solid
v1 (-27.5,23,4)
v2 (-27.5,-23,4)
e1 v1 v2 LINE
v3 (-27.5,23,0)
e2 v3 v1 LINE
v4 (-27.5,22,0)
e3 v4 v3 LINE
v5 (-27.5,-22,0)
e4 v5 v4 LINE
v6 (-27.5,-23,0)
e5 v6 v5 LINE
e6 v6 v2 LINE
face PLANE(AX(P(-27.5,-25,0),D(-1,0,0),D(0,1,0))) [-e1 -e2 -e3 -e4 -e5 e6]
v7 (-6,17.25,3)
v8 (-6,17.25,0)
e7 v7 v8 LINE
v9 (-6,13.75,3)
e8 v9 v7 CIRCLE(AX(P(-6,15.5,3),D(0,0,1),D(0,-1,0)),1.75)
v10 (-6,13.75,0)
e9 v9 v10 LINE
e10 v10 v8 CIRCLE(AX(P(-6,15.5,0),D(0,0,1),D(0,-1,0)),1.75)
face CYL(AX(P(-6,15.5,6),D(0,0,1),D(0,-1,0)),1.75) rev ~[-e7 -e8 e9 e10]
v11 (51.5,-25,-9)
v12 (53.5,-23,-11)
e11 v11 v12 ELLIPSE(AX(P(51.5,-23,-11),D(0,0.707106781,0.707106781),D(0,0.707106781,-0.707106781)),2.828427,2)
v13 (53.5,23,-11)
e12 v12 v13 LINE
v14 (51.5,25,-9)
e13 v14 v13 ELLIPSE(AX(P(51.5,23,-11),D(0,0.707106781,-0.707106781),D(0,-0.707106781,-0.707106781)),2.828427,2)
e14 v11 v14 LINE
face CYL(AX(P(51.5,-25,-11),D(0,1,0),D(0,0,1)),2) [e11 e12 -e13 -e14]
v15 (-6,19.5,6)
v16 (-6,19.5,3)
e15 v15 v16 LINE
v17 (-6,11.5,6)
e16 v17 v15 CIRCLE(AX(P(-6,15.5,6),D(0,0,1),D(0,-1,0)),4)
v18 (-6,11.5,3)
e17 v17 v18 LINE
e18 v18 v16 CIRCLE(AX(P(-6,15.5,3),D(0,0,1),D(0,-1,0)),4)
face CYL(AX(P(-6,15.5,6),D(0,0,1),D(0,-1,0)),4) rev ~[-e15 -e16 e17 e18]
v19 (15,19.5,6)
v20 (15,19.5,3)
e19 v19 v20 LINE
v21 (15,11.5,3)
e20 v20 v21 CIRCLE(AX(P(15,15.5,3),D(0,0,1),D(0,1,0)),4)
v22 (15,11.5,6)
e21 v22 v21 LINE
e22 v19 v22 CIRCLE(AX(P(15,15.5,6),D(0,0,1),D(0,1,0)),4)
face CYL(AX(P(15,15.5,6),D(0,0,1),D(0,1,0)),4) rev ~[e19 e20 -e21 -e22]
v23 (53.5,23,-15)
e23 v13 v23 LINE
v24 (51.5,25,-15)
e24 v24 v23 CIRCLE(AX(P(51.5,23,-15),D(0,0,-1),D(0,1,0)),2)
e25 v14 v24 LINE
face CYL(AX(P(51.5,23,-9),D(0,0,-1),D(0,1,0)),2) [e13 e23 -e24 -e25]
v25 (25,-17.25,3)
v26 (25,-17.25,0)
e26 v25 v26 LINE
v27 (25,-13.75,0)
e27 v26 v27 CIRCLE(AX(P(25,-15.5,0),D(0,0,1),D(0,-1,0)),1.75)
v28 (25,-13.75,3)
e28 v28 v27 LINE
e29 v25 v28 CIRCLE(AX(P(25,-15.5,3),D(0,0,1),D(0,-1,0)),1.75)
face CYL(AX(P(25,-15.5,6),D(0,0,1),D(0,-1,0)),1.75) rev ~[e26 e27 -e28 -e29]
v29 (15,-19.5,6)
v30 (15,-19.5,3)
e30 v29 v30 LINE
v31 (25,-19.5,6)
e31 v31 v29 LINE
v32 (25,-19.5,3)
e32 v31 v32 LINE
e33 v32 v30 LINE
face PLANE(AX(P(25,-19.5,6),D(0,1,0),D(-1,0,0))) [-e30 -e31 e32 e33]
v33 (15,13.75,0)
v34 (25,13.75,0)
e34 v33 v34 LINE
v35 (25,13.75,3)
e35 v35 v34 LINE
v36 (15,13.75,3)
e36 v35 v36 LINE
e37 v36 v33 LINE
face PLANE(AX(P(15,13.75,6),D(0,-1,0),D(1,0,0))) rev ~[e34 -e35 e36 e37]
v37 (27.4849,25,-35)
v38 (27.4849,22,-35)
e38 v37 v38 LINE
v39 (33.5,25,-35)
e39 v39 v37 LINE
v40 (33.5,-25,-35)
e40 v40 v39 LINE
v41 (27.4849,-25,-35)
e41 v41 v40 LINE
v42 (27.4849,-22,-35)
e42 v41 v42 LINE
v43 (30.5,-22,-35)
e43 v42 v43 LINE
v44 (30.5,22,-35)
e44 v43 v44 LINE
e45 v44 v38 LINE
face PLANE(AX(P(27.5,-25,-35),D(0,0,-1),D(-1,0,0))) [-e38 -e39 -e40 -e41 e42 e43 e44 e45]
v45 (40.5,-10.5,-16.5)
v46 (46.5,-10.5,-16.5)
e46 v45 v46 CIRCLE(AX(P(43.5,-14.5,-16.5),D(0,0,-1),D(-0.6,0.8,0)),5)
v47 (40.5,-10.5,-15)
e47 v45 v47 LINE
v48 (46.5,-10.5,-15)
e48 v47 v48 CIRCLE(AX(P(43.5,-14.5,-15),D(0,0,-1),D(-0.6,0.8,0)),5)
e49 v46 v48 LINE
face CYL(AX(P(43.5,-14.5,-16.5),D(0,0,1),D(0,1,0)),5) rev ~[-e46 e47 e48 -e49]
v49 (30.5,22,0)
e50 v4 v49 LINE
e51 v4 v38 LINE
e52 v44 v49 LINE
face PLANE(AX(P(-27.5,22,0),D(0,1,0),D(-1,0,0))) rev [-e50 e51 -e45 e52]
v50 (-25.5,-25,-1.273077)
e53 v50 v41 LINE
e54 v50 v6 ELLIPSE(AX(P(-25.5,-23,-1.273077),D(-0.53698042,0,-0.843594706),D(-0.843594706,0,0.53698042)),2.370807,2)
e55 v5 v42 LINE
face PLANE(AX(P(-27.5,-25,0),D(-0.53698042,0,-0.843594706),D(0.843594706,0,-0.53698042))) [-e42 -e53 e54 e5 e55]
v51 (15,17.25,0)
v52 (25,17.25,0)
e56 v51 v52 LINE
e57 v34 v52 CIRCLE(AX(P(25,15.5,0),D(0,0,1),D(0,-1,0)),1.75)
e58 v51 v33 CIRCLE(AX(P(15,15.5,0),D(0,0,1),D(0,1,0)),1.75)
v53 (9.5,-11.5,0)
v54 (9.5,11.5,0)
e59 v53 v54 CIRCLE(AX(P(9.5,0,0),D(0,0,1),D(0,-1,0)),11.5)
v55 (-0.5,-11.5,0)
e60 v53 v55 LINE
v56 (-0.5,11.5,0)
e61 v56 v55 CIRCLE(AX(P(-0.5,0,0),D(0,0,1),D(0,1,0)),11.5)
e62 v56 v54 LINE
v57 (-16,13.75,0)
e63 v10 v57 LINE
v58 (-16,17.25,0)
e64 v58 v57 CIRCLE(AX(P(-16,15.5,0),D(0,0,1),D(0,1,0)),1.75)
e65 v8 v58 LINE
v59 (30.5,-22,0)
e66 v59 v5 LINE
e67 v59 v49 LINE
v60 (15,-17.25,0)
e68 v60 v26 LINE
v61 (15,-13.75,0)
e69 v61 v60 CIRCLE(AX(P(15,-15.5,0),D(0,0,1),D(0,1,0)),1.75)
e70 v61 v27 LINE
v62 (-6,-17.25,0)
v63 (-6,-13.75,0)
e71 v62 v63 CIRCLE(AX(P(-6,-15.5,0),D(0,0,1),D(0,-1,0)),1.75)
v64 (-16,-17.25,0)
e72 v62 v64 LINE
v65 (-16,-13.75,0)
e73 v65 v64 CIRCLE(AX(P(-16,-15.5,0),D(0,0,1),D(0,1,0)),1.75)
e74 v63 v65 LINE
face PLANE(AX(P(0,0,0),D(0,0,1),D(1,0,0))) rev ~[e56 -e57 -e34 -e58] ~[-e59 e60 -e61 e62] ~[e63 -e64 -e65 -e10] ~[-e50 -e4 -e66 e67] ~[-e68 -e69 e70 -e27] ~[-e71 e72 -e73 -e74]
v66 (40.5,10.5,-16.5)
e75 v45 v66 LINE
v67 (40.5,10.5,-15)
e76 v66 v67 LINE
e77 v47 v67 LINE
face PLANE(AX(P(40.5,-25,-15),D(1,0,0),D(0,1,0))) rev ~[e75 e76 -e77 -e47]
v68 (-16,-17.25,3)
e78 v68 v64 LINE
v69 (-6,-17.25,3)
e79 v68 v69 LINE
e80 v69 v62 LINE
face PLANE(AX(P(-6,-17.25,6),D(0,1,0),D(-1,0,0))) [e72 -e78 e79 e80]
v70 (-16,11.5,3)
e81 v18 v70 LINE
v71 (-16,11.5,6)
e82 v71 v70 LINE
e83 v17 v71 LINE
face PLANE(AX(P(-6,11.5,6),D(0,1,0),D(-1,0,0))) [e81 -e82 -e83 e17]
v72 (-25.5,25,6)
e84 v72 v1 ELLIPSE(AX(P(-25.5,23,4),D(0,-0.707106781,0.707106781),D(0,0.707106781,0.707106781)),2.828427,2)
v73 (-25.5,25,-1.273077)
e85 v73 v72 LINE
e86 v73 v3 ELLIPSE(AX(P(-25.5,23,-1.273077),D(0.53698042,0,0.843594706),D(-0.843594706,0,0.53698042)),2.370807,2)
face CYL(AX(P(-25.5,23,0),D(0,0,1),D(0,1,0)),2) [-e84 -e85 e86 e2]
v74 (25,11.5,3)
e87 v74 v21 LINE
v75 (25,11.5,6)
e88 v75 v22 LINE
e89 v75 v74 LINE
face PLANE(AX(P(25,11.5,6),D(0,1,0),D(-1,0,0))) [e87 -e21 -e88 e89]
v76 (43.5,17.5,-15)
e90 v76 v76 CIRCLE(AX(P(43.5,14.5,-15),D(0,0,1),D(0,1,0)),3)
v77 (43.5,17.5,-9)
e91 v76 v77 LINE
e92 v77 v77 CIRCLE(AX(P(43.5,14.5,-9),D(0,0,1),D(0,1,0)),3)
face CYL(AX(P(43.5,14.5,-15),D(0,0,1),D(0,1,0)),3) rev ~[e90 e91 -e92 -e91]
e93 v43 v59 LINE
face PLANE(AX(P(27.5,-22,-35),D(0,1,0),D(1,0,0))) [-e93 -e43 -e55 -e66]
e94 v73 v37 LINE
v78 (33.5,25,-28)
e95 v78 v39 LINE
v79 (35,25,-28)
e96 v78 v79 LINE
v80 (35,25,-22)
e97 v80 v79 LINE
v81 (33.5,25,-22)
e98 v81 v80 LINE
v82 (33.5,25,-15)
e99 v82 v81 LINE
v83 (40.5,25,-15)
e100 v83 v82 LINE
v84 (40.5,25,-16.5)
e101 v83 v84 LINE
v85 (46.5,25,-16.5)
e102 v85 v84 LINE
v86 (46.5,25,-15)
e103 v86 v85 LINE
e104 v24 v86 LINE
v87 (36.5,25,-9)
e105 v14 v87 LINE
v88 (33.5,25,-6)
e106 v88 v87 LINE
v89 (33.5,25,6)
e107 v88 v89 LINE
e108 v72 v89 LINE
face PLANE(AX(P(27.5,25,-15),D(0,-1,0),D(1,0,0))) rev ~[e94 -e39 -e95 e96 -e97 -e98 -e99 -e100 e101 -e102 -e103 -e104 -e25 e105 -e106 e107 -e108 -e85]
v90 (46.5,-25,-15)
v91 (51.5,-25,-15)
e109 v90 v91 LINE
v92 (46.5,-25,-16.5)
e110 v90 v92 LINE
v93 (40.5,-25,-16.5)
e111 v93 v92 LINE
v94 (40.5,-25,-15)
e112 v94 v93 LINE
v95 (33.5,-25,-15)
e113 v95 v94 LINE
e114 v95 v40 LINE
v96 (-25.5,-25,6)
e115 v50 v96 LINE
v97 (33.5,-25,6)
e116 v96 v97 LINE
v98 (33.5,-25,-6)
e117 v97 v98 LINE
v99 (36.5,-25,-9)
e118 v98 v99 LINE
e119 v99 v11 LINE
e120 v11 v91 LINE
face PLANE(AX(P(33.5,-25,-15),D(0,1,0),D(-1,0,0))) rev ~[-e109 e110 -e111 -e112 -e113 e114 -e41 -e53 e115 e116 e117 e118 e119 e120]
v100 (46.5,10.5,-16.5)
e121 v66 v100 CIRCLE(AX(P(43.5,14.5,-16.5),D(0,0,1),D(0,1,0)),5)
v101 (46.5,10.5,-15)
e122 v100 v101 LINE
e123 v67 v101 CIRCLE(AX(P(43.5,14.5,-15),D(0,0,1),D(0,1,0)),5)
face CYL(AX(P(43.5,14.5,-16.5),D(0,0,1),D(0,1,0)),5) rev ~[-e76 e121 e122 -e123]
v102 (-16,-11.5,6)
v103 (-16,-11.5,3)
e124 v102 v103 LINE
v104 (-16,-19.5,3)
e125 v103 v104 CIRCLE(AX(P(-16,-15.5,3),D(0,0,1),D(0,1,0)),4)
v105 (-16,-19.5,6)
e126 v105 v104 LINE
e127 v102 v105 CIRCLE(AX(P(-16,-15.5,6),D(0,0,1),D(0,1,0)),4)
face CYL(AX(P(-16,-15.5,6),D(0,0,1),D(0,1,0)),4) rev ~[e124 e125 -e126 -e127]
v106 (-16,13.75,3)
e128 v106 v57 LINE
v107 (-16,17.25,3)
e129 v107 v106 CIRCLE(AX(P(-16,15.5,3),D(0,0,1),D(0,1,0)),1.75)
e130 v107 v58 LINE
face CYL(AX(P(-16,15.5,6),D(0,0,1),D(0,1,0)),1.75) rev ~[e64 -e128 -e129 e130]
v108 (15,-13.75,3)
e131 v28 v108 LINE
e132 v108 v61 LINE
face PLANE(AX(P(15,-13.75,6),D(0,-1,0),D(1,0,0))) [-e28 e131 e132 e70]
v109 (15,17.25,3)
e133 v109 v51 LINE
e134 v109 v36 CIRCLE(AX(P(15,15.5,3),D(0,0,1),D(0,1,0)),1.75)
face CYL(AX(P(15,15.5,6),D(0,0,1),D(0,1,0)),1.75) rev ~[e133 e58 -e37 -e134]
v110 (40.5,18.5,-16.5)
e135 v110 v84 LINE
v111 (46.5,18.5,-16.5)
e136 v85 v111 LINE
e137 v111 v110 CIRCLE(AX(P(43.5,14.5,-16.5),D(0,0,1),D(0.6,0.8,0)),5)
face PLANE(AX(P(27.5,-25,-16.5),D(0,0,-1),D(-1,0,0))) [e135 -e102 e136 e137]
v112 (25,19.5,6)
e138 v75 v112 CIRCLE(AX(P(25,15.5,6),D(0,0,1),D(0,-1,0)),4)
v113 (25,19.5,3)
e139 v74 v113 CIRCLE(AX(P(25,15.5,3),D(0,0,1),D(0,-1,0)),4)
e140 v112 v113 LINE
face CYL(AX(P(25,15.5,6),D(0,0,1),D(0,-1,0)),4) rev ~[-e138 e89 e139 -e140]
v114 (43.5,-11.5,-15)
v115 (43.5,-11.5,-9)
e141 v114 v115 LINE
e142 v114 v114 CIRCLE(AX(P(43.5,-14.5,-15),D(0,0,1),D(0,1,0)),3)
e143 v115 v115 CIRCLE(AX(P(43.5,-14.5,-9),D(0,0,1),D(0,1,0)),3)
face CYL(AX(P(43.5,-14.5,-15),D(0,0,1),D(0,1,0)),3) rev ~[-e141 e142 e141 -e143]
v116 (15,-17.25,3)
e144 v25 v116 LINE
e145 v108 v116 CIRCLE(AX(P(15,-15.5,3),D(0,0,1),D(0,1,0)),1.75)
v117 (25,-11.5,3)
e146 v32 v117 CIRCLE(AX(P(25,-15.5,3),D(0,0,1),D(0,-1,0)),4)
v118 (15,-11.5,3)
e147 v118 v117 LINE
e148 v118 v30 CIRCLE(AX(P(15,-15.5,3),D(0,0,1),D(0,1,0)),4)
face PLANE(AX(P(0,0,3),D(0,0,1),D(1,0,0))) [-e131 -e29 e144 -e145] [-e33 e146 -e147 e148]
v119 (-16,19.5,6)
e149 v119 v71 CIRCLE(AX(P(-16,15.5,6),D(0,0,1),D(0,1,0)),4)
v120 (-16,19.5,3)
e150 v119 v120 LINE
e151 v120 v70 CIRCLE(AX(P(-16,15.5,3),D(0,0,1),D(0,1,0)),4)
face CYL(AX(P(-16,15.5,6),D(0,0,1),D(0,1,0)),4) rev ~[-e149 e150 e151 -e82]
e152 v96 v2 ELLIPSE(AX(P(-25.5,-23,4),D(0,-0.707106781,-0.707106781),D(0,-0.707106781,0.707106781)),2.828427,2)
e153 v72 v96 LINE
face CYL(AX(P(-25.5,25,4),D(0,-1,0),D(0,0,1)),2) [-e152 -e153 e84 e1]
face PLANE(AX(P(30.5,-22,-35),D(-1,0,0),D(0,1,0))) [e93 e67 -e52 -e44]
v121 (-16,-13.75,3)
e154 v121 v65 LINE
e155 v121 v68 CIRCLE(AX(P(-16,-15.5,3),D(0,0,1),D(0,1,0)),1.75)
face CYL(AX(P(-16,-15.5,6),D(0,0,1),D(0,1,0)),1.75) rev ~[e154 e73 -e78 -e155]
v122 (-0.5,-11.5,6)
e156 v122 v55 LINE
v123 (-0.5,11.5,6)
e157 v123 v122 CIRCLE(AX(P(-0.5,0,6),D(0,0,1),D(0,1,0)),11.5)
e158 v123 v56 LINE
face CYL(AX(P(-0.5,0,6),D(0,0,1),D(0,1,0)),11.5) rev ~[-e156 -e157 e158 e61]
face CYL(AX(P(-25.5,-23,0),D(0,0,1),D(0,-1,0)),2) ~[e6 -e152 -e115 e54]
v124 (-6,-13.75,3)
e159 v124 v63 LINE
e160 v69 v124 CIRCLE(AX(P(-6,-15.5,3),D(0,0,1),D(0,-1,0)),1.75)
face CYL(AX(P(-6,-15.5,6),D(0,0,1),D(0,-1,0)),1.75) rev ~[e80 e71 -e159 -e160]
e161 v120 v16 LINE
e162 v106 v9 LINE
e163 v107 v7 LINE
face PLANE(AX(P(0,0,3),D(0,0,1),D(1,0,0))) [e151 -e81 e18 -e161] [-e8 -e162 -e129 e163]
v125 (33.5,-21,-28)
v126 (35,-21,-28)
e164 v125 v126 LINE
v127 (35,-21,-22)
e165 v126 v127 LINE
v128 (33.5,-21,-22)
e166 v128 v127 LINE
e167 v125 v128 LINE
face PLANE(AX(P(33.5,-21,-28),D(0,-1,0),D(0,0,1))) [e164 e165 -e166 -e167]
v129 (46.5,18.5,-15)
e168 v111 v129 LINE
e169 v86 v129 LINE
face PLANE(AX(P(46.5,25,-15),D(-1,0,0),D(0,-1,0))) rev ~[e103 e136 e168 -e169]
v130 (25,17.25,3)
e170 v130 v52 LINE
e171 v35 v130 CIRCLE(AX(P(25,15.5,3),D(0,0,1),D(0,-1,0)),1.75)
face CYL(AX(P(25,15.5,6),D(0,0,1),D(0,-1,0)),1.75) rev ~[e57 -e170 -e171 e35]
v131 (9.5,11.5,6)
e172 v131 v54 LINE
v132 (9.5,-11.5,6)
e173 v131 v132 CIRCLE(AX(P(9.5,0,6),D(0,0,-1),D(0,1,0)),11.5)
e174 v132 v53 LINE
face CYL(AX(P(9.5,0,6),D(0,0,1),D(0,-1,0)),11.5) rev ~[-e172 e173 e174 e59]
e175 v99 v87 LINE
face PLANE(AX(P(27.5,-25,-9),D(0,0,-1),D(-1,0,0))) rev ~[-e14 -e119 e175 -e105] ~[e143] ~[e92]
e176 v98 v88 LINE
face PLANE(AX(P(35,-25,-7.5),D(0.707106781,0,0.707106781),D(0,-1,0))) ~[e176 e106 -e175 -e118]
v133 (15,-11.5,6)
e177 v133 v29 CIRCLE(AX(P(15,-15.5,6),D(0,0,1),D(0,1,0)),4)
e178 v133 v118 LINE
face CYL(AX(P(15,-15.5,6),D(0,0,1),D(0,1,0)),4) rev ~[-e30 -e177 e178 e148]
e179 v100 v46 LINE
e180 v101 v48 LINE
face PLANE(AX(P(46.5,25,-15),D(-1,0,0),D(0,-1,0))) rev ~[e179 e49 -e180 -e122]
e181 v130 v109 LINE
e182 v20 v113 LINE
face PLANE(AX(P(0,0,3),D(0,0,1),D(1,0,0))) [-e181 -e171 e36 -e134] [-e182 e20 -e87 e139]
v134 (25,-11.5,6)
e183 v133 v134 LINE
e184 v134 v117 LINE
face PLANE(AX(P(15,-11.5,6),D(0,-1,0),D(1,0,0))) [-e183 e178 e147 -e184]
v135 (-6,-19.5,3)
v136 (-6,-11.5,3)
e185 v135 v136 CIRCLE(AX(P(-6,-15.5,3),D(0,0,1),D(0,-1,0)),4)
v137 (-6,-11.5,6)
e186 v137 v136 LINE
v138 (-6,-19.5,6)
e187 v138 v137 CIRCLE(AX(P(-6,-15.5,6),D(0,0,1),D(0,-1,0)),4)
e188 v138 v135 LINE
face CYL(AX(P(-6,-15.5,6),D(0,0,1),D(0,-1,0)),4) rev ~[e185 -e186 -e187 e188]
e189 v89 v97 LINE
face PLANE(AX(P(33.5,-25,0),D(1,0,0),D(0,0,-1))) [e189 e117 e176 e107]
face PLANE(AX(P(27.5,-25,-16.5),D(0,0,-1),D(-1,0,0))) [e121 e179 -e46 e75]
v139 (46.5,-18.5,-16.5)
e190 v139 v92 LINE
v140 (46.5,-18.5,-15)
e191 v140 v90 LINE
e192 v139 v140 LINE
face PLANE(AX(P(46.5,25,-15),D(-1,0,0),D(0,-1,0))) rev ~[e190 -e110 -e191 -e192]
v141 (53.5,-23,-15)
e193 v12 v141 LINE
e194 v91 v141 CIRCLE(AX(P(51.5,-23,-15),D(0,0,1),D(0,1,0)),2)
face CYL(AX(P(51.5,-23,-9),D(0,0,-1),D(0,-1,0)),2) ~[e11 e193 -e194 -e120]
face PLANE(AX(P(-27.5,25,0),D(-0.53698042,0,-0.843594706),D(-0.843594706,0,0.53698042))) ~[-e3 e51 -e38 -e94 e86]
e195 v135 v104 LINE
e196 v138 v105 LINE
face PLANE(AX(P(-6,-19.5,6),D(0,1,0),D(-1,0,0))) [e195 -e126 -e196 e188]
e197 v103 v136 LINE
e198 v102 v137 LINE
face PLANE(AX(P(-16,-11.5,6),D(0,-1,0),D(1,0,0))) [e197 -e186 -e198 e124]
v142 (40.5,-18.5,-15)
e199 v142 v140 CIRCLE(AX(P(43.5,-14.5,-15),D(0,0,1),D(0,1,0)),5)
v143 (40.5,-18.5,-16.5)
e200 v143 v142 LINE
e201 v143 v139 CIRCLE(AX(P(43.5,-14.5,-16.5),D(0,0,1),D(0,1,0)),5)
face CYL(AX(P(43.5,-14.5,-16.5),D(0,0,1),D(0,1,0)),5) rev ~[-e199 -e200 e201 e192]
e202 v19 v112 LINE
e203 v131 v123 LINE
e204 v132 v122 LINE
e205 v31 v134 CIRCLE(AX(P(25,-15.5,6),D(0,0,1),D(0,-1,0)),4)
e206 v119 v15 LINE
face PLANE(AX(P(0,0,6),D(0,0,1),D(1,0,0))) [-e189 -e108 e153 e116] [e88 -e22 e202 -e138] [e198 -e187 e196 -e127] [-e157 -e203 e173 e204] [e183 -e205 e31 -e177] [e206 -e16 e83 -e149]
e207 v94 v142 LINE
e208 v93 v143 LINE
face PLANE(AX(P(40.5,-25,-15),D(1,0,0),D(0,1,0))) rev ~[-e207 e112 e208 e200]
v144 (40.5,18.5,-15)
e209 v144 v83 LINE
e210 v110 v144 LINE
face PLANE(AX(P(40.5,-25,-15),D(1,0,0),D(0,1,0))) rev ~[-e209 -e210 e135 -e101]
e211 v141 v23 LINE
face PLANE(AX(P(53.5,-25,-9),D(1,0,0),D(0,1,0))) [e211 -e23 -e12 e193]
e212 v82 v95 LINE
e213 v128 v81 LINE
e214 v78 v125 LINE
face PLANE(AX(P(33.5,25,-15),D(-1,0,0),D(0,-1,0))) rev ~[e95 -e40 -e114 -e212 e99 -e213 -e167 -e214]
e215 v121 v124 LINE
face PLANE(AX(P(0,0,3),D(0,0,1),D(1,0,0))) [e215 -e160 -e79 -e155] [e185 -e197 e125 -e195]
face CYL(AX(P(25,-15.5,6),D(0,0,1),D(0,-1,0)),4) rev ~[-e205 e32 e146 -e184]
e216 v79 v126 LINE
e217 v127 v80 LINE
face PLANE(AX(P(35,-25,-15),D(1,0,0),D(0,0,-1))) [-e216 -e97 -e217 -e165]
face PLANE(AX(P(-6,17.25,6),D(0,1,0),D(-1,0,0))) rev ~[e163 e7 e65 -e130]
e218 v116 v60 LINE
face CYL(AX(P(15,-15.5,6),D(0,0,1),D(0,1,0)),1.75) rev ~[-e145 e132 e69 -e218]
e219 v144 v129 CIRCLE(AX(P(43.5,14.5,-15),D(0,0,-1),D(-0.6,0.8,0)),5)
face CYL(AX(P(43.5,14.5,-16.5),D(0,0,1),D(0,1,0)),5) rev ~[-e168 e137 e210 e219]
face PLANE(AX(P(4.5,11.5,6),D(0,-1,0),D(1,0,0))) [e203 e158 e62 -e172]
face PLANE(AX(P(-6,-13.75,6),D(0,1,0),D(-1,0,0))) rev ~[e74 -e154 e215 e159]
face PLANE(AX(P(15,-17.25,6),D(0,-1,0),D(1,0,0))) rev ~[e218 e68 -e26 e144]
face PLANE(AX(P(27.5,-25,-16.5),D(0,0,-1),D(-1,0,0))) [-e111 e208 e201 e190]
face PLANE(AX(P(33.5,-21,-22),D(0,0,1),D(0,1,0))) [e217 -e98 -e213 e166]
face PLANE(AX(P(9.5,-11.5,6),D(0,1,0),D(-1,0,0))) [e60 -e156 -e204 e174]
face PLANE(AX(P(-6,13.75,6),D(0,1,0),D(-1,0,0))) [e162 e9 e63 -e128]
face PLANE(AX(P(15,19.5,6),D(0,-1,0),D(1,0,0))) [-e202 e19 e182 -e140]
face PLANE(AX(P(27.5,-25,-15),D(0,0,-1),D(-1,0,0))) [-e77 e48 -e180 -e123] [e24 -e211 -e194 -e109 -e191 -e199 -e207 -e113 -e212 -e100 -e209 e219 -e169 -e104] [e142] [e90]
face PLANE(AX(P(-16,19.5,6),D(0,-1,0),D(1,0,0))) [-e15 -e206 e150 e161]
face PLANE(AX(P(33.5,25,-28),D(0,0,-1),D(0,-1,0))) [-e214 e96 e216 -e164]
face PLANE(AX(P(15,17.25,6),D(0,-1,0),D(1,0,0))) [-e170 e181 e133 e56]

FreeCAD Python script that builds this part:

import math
import FreeCAD as App
import Part
import Sketcher
from FreeCAD import Vector


def edges_at(feature, points):
    """Names of the edges that pass closest to the given points."""
    edges = feature.Shape.Edges
    near = lambda p: min(range(len(edges)), key=lambda i: edges[i].distToShape(Part.Vertex(*p))[0])
    return sorted({f"Edge{near(p) + 1}" for p in points})

doc = App.newDocument("Part")
body = doc.addObject("PartDesign::Body", "Body")

# Sketch on XY plane
sketch1 = doc.addObject("Sketcher::SketchObject", "Sketch")
body.addObject(sketch1)
sketch1.AttachmentSupport = (doc.XY_Plane, [""])
sketch1.MapMode = "FlatFace"
sketch1.addGeometry([
    Part.LineSegment(Vector(27.5, 25, 0), Vector(-27.5, 25, 0)),
    Part.LineSegment(Vector(-27.5, 25, 0), Vector(-27.5, -25, 0)),
    Part.LineSegment(Vector(-27.5, -25, 0), Vector(27.5, -25, 0)),
    Part.LineSegment(Vector(27.5, -25, 0), Vector(27.5, 25, 0)),
], False)
sketch1.addConstraint([
    Sketcher.Constraint("Coincident", 0, 2, 1, 1),
    Sketcher.Constraint("Coincident", 1, 2, 2, 1),
    Sketcher.Constraint("Coincident", 2, 2, 3, 1),
    Sketcher.Constraint("Coincident", 3, 2, 0, 1),
    Sketcher.Constraint("Horizontal", 0),
    Sketcher.Constraint("Vertical", 1),
    Sketcher.Constraint("Horizontal", 2),
    Sketcher.Constraint("Vertical", 3),
    Sketcher.Constraint("Symmetric", 0, 2, 2, 2, -1, 1),
    Sketcher.Constraint("DistanceX", 0, 2, 0, 1, 55.0),
    Sketcher.Constraint("DistanceY", 1, 2, 1, 1, 50.0),
])
pad1 = doc.addObject("PartDesign::Pad", "Pad")
body.addObject(pad1)
pad1.Profile = sketch1
pad1.Length = 6

# Sketch on YZ plane
sketch2 = doc.addObject("Sketcher::SketchObject", "Sketch001")
body.addObject(sketch2)
sketch2.AttachmentSupport = (doc.YZ_Plane, [""])
sketch2.MapMode = "FlatFace"
sketch2.AttachmentOffset = App.Placement(Vector(0, 0, 27.5), App.Rotation())
sketch2.addGeometry([
    Part.LineSegment(Vector(25, -9, 0), Vector(25, 6, 0)),
    Part.LineSegment(Vector(25, 6, 0), Vector(-25, 6, 0)),
    Part.LineSegment(Vector(-25, 6, 0), Vector(-25, -9, 0)),
    Part.LineSegment(Vector(-25, -9, 0), Vector(25, -9, 0)),
], False)
sketch2.addConstraint([
    Sketcher.Constraint("Coincident", 0, 2, 1, 1),
    Sketcher.Constraint("Coincident", 1, 2, 2, 1),
    Sketcher.Constraint("Coincident", 2, 2, 3, 1),
    Sketcher.Constraint("Coincident", 3, 2, 0, 1),
    Sketcher.Constraint("Vertical", 0),
    Sketcher.Constraint("Horizontal", 1),
    Sketcher.Constraint("Vertical", 2),
    Sketcher.Constraint("Horizontal", 3),
    Sketcher.Constraint("DistanceX", 1, 2, 1, 1, 50.0),
    Sketcher.Constraint("DistanceY", 0, 1, 0, 2, 15.0),
    Sketcher.Constraint("DistanceX", -1, 1, 0, 2, 25.0),
    Sketcher.Constraint("DistanceY", -1, 1, 0, 2, 6.0),
])
pad2 = doc.addObject("PartDesign::Pad", "Pad001")
body.addObject(pad2)
pad2.Profile = sketch2
pad2.Length = 6

# Sketch on XY plane
sketch3 = doc.addObject("Sketcher::SketchObject", "Sketch002")
body.addObject(sketch3)
sketch3.AttachmentSupport = (doc.XY_Plane, [""])
sketch3.MapMode = "FlatFace"
sketch3.AttachmentOffset = App.Placement(Vector(0, 0, -9), App.Rotation())
sketch3.addGeometry([
    Part.LineSegment(Vector(53.5, -25, 0), Vector(27.5, -25, 0)),
    Part.LineSegment(Vector(27.5, -25, 0), Vector(27.5, 25, 0)),
    Part.LineSegment(Vector(27.5, 25, 0), Vector(53.5, 25, 0)),
    Part.LineSegment(Vector(53.5, 25, 0), Vector(53.5, -25, 0)),
], False)
sketch3.addConstraint([
    Sketcher.Constraint("Coincident", 0, 2, 1, 1),
    Sketcher.Constraint("Coincident", 1, 2, 2, 1),
    Sketcher.Constraint("Coincident", 2, 2, 3, 1),
    Sketcher.Constraint("Coincident", 3, 2, 0, 1),
    Sketcher.Constraint("Horizontal", 0),
    Sketcher.Constraint("Vertical", 1),
    Sketcher.Constraint("Horizontal", 2),
    Sketcher.Constraint("Vertical", 3),
    Sketcher.Constraint("DistanceX", 0, 2, 0, 1, 26.0),
    Sketcher.Constraint("DistanceY", 1, 1, 1, 2, 50.0),
    Sketcher.Constraint("DistanceY", 0, 2, -1, 1, 25.0),
    Sketcher.Constraint("DistanceX", -1, 1, 0, 2, 27.5),
])
pad3 = doc.addObject("PartDesign::Pad", "Pad002")
body.addObject(pad3)
pad3.Profile = sketch3
pad3.Length = 6
pad3.Reversed = True

# Sketch on XY plane
sketch4 = doc.addObject("Sketcher::SketchObject", "Sketch003")
body.addObject(sketch4)
sketch4.AttachmentSupport = (doc.XY_Plane, [""])
sketch4.MapMode = "FlatFace"
sketch4.AttachmentOffset = App.Placement(Vector(0, 0, -15), App.Rotation())
sketch4.addGeometry([
    Part.LineSegment(Vector(27.5, -25, 0), Vector(27.5, 25, 0)),
    Part.LineSegment(Vector(27.5, 25, 0), Vector(33.5, 25, 0)),
    Part.LineSegment(Vector(33.5, 25, 0), Vector(33.5, -25, 0)),
    Part.LineSegment(Vector(33.5, -25, 0), Vector(27.5, -25, 0)),
], False)
sketch4.addConstraint([
    Sketcher.Constraint("Coincident", 0, 2, 1, 1),
    Sketcher.Constraint("Coincident", 1, 2, 2, 1),
    Sketcher.Constraint("Coincident", 2, 2, 3, 1),
    Sketcher.Constraint("Coincident", 3, 2, 0, 1),
    Sketcher.Constraint("Vertical", 0),
    Sketcher.Constraint("Horizontal", 1),
    Sketcher.Constraint("Vertical", 2),
    Sketcher.Constraint("Horizontal", 3),
    Sketcher.Constraint("DistanceX", 1, 1, 1, 2, 6.0),
    Sketcher.Constraint("DistanceY", 0, 1, 0, 2, 50.0),
    Sketcher.Constraint("DistanceY", -1, 1, 0, 2, 25.0),
    Sketcher.Constraint("DistanceX", -1, 1, 0, 2, 27.5),
])
pad4 = doc.addObject("PartDesign::Pad", "Pad003")
body.addObject(pad4)
pad4.Profile = sketch4
pad4.Length = 20
pad4.Reversed = True

# Sketch on XY plane
sketch5 = doc.addObject("Sketcher::SketchObject", "Sketch004")
body.addObject(sketch5)
sketch5.AttachmentSupport = (doc.XY_Plane, [""])
sketch5.MapMode = "FlatFace"
sketch5.AttachmentOffset = App.Placement(Vector(0, 0, -15), App.Rotation())
sketch5.addGeometry([
    Part.LineSegment(Vector(46.5, -25, 0), Vector(40.5, -25, 0)),
    Part.LineSegment(Vector(40.5, -25, 0), Vector(40.5, 25, 0)),
    Part.LineSegment(Vector(40.5, 25, 0), Vector(46.5, 25, 0)),
    Part.LineSegment(Vector(46.5, 25, 0), Vector(46.5, -25, 0)),
], False)
sketch5.addConstraint([
    Sketcher.Constraint("Coincident", 0, 2, 1, 1),
    Sketcher.Constraint("Coincident", 1, 2, 2, 1),
    Sketcher.Constraint("Coincident", 2, 2, 3, 1),
    Sketcher.Constraint("Coincident", 3, 2, 0, 1),
    Sketcher.Constraint("Horizontal", 0),
    Sketcher.Constraint("Vertical", 1),
    Sketcher.Constraint("Horizontal", 2),
    Sketcher.Constraint("Vertical", 3),
    Sketcher.Constraint("DistanceX", 0, 2, 0, 1, 6.0),
    Sketcher.Constraint("DistanceY", 1, 1, 1, 2, 50.0),
    Sketcher.Constraint("DistanceY", 0, 2, -1, 1, 25.0),
    Sketcher.Constraint("DistanceX", -1, 1, 0, 2, 40.5),
])
pad5 = doc.addObject("PartDesign::Pad", "Pad004")
body.addObject(pad5)
pad5.Profile = sketch5
pad5.Length = 1.5
pad5.Reversed = True

# Sketch on YZ plane
sketch6 = doc.addObject("Sketcher::SketchObject", "Sketch005")
body.addObject(sketch6)
sketch6.AttachmentSupport = (doc.YZ_Plane, [""])
sketch6.MapMode = "FlatFace"
sketch6.AttachmentOffset = App.Placement(Vector(0, 0, 33.5), App.Rotation())
sketch6.addGeometry([
    Part.LineSegment(Vector(-21, -22, 0), Vector(-21, -28, 0)),
    Part.LineSegment(Vector(-21, -28, 0), Vector(25, -28, 0)),
    Part.LineSegment(Vector(25, -28, 0), Vector(25, -22, 0)),
    Part.LineSegment(Vector(25, -22, 0), Vector(-21, -22, 0)),
], False)
sketch6.addConstraint([
    Sketcher.Constraint("Coincident", 0, 2, 1, 1),
    Sketcher.Constraint("Coincident", 1, 2, 2, 1),
    Sketcher.Constraint("Coincident", 2, 2, 3, 1),
    Sketcher.Constraint("Coincident", 3, 2, 0, 1),
    Sketcher.Constraint("Vertical", 0),
    Sketcher.Constraint("Horizontal", 1),
    Sketcher.Constraint("Vertical", 2),
    Sketcher.Constraint("Horizontal", 3),
    Sketcher.Constraint("DistanceX", 1, 1, 1, 2, 46.0),
    Sketcher.Constraint("DistanceY", 0, 2, 0, 1, 6.0),
    Sketcher.Constraint("DistanceX", 0, 2, -1, 1, 21.0),
    Sketcher.Constraint("DistanceY", 0, 2, -1, 1, 28.0),
])
pad6 = doc.addObject("PartDesign::Pad", "Pad005")
body.addObject(pad6)
pad6.Profile = sketch6
pad6.Length = 1.5

# Sketch on XY plane
sketch7 = doc.addObject("Sketcher::SketchObject", "Sketch006")
body.addObject(sketch7)
sketch7.AttachmentSupport = (doc.XY_Plane, [""])
sketch7.MapMode = "FlatFace"
sketch7.AttachmentOffset = App.Placement(Vector(0, 0, -16.5), App.Rotation())
sketch7.addGeometry([
    Part.Circle(Vector(43.5, -14.5, 0), Vector(0, 0, 1), 3),
    Part.Circle(Vector(43.5, 14.5, 0), Vector(0, 0, 1), 3),
], False)
sketch7.addConstraint([
    Sketcher.Constraint("Equal", 0, 1),
    Sketcher.Constraint("Symmetric", 0, 3, 1, 3, -1),
    Sketcher.Constraint("Diameter", 0, 6.0),
    Sketcher.Constraint("DistanceY", 0, 3, 1, 3, 29.0),
    Sketcher.Constraint("DistanceX", -1, 1, 0, 3, 43.5),
])
doc.recompute()
hole = doc.addObject("PartDesign::Hole", "Hole")
body.addObject(hole)
hole.Profile = sketch7
hole.ThreadType = "None"
hole.Diameter = 6
hole.DepthType = "ThroughAll"
hole.HoleCutType = "Counterbore"
hole.HoleCutDiameter = 10
hole.HoleCutDepth = 1.5
hole.Reversed = True

# Sketch on XZ plane
sketch8 = doc.addObject("Sketcher::SketchObject", "Sketch007")
body.addObject(sketch8)
sketch8.AttachmentSupport = (doc.XZ_Plane, [""])
sketch8.MapMode = "FlatFace"
sketch8.AttachmentOffset = App.Placement(Vector(0, 0, 25), App.Rotation())
sketch8.addGeometry([
    Part.LineSegment(Vector(33.5, -35, 0), Vector(33.5, 6, 0)),  # 0
    Part.LineSegment(Vector(33.5, 6, 0), Vector(-27.5, 6, 0)),  # 1
    Part.LineSegment(Vector(-27.5, 6, 0), Vector(-27.5, 0, 0)),  # 2
    Part.LineSegment(Vector(-27.5, 0, 0), Vector(27.4849, -35, 0)),  # 3
    Part.LineSegment(Vector(27.4849, -35, 0), Vector(33.5, -35, 0)),  # 4
], False)
sketch8.addConstraint([
    Sketcher.Constraint("Coincident", 0, 2, 1, 1),
    Sketcher.Constraint("Coincident", 1, 2, 2, 1),
    Sketcher.Constraint("Coincident", 2, 2, 3, 1),
    Sketcher.Constraint("Coincident", 3, 2, 4, 1),
    Sketcher.Constraint("Coincident", 4, 2, 0, 1),
    Sketcher.Constraint("Vertical", 0),
    Sketcher.Constraint("Horizontal", 1),
    Sketcher.Constraint("Vertical", 2),
    Sketcher.Constraint("Horizontal", 4),
    Sketcher.Constraint("PointOnObject", 2, 2, -1),
    Sketcher.Constraint("DistanceX", 1, 2, 1, 1, 61.0),
    Sketcher.Constraint("DistanceY", 0, 1, 0, 2, 41.0),
    Sketcher.Constraint("DistanceY", 2, 2, 2, 1, 6.0),
    Sketcher.Constraint("DistanceX", -1, 1, 0, 2, 33.5),
    Sketcher.Constraint("DistanceX", 4, 1, 4, 2, 6.015),
])
pad7 = doc.addObject("PartDesign::Pad", "Pad006")
body.addObject(pad7)
pad7.Profile = sketch8
pad7.Length = 3
pad7.Reversed = True
doc.recompute()

mirrored = doc.addObject("PartDesign::Mirrored", "Mirrored")
body.addObject(mirrored)
mirrored.Originals = [pad7]
mirrored.MirrorPlane = (doc.XZ_Plane, [""])
body.Tip = mirrored

# Sketch on XY plane
sketch9 = doc.addObject("Sketcher::SketchObject", "Sketch008")
body.addObject(sketch9)
sketch9.AttachmentSupport = (doc.XY_Plane, [""])
sketch9.MapMode = "FlatFace"
sketch9.AttachmentOffset = App.Placement(Vector(0, 0, -35), App.Rotation())
sketch9.addGeometry([
    Part.LineSegment(Vector(30.5, -22, 0), Vector(27.5, -22, 0)),
    Part.LineSegment(Vector(27.5, -22, 0), Vector(27.5, 22, 0)),
    Part.LineSegment(Vector(27.5, 22, 0), Vector(30.5, 22, 0)),
    Part.LineSegment(Vector(30.5, 22, 0), Vector(30.5, -22, 0)),
], False)
sketch9.addConstraint([
    Sketcher.Constraint("Coincident", 0, 2, 1, 1),
    Sketcher.Constraint("Coincident", 1, 2, 2, 1),
    Sketcher.Constraint("Coincident", 2, 2, 3, 1),
    Sketcher.Constraint("Coincident", 3, 2, 0, 1),
    Sketcher.Constraint("Horizontal", 0),
    Sketcher.Constraint("Vertical", 1),
    Sketcher.Constraint("Horizontal", 2),
    Sketcher.Constraint("Vertical", 3),
    Sketcher.Constraint("DistanceX", 0, 2, 0, 1, 3.0),
    Sketcher.Constraint("DistanceY", 1, 1, 1, 2, 44.0),
    Sketcher.Constraint("DistanceY", 0, 2, -1, 1, 22.0),
    Sketcher.Constraint("DistanceX", -1, 1, 0, 2, 27.5),
])
pocket1 = doc.addObject("PartDesign::Pocket", "Pocket")
body.addObject(pocket1)
pocket1.Profile = sketch9
pocket1.Length = 35
pocket1.Reversed = True

# Sketch on XY plane
sketch10 = doc.addObject("Sketcher::SketchObject", "Sketch009")
body.addObject(sketch10)
sketch10.AttachmentSupport = (doc.XY_Plane, [""])
sketch10.MapMode = "FlatFace"
sketch10.AttachmentOffset = App.Placement(Vector(0, 0, 6), App.Rotation())
sketch10.addGeometry([
    Part.LineSegment(Vector(25, 17.25, 0), Vector(15, 17.25, 0)),  # 0
    Part.ArcOfCircle(Part.Circle(Vector(15, 15.5, 0), Vector(0, 0, 1), 1.75), math.radians(90), math.radians(270)),  # 1
    Part.LineSegment(Vector(15, 13.75, 0), Vector(25, 13.75, 0)),  # 2
    Part.ArcOfCircle(Part.Circle(Vector(25, 15.5, 0), Vector(0, 0, 1), 1.75), math.radians(-90), math.radians(90)),  # 3
    Part.ArcOfCircle(Part.Circle(Vector(9.5, 0, 0), Vector(0, 0, 1), 11.5), math.radians(-90), math.radians(90)),  # 4
    Part.LineSegment(Vector(9.5, 11.5, 0), Vector(-0.5, 11.5, 0)),  # 5
    Part.ArcOfCircle(Part.Circle(Vector(-0.5, 0, 0), Vector(0, 0, 1), 11.5), math.radians(90), math.radians(270)),  # 6
    Part.LineSegment(Vector(-0.5, -11.5, 0), Vector(9.5, -11.5, 0)),  # 7
    Part.LineSegment(Vector(-16, 13.75, 0), Vector(-6, 13.75, 0)),  # 8
    Part.ArcOfCircle(Part.Circle(Vector(-6, 15.5, 0), Vector(0, 0, 1), 1.75), math.radians(-90), math.radians(90)),  # 9
    Part.LineSegment(Vector(-6, 17.25, 0), Vector(-16, 17.25, 0)),  # 10
    Part.ArcOfCircle(Part.Circle(Vector(-16, 15.5, 0), Vector(0, 0, 1), 1.75), math.radians(90), math.radians(270)),  # 11
    Part.LineSegment(Vector(25, -13.75, 0), Vector(15, -13.75, 0)),  # 12
    Part.ArcOfCircle(Part.Circle(Vector(15, -15.5, 0), Vector(0, 0, 1), 1.75), math.radians(90), math.radians(270)),  # 13
    Part.LineSegment(Vector(15, -17.25, 0), Vector(25, -17.25, 0)),  # 14
    Part.ArcOfCircle(Part.Circle(Vector(25, -15.5, 0), Vector(0, 0, 1), 1.75), math.radians(-90), math.radians(90)),  # 15
    Part.LineSegment(Vector(-6, -13.75, 0), Vector(-16, -13.75, 0)),  # 16
    Part.ArcOfCircle(Part.Circle(Vector(-16, -15.5, 0), Vector(0, 0, 1), 1.75), math.radians(90), math.radians(270)),  # 17
    Part.LineSegment(Vector(-16, -17.25, 0), Vector(-6, -17.25, 0)),  # 18
    Part.ArcOfCircle(Part.Circle(Vector(-6, -15.5, 0), Vector(0, 0, 1), 1.75), math.radians(-90), math.radians(90)),  # 19
], False)
sketch10.addConstraint([
    Sketcher.Constraint("Tangent", 0, 2, 1, 1),
    Sketcher.Constraint("Tangent", 1, 2, 2, 1),
    Sketcher.Constraint("Tangent", 2, 2, 3, 1),
    Sketcher.Constraint("Tangent", 3, 2, 0, 1),
    Sketcher.Constraint("Tangent", 4, 2, 5, 1),
    Sketcher.Constraint("Tangent", 5, 2, 6, 1),
    Sketcher.Constraint("Tangent", 6, 2, 7, 1),
    Sketcher.Constraint("Tangent", 7, 2, 4, 1),
    Sketcher.Constraint("Tangent", 8, 2, 9, 1),
    Sketcher.Constraint("Tangent", 9, 2, 10, 1),
    Sketcher.Constraint("Tangent", 10, 2, 11, 1),
    Sketcher.Constraint("Tangent", 11, 2, 8, 1),
    Sketcher.Constraint("Tangent", 12, 2, 13, 1),
    Sketcher.Constraint("Tangent", 13, 2, 14, 1),
    Sketcher.Constraint("Tangent", 14, 2, 15, 1),
    Sketcher.Constraint("Tangent", 15, 2, 12, 1),
    Sketcher.Constraint("Tangent", 16, 2, 17, 1),
    Sketcher.Constraint("Tangent", 17, 2, 18, 1),
    Sketcher.Constraint("Tangent", 18, 2, 19, 1),
    Sketcher.Constraint("Tangent", 19, 2, 16, 1),
    Sketcher.Constraint("Horizontal", 0),
    Sketcher.Constraint("Horizontal", 2),
    Sketcher.Constraint("Horizontal", 5),
    Sketcher.Constraint("Horizontal", 7),
    Sketcher.Constraint("Horizontal", 8),
    Sketcher.Constraint("Horizontal", 10),
    Sketcher.Constraint("Horizontal", 12),
    Sketcher.Constraint("Horizontal", 14),
    Sketcher.Constraint("Horizontal", 16),
    Sketcher.Constraint("Horizontal", 18),
    Sketcher.Constraint("Equal", 3, 9),
    Sketcher.Constraint("Equal", 11, 13),
    Sketcher.Constraint("Equal", 15, 17),
    Sketcher.Constraint("Symmetric", 1, 3, 13, 3, -1),
    Sketcher.Constraint("Symmetric", 11, 3, 17, 3, -1),
    Sketcher.Constraint("PointOnObject", 4, 3, -1),
    Sketcher.Constraint("Horizontal", 3, 3, 9, 3),
    Sketcher.Constraint("Vertical", 3, 3, 15, 3),
    Sketcher.Constraint("Vertical", 9, 3, 19, 3),
    Sketcher.Constraint("Equal", 2, 5),
    Sketcher.Constraint("Equal", 7, 8),
    Sketcher.Constraint("Radius", 4, 11.5),
    Sketcher.Constraint("Radius", 1, 1.75),
    Sketcher.Constraint("DistanceY", -1, 1, 1, 3, 15.5),
    Sketcher.Constraint("DistanceX", 4, 3, 3, 3, 15.5),
    Sketcher.Constraint("DistanceX", 9, 3, 4, 3, 15.5),
    Sketcher.Constraint("DistanceX", 0, 2, 0, 1, 10.0),
    Sketcher.Constraint("DistanceX", -1, 1, 1, 3, 15.0),
])
pocket2 = doc.addObject("PartDesign::Pocket", "Pocket001")
body.addObject(pocket2)
pocket2.Profile = sketch10
pocket2.Length = 42

# Sketch on XY plane
sketch11 = doc.addObject("Sketcher::SketchObject", "Sketch010")
body.addObject(sketch11)
sketch11.AttachmentSupport = (doc.XY_Plane, [""])
sketch11.MapMode = "FlatFace"
sketch11.AttachmentOffset = App.Placement(Vector(0, 0, 6), App.Rotation())
sketch11.addGeometry([
    Part.LineSegment(Vector(-6, 19.5, 0), Vector(-16, 19.5, 0)),  # 0
    Part.ArcOfCircle(Part.Circle(Vector(-16, 15.5, 0), Vector(0, 0, 1), 4), math.radians(90), math.radians(270)),  # 1
    Part.LineSegment(Vector(-16, 11.5, 0), Vector(-6, 11.5, 0)),  # 2
    Part.ArcOfCircle(Part.Circle(Vector(-6, 15.5, 0), Vector(0, 0, 1), 4), math.radians(-90), math.radians(90)),  # 3
    Part.LineSegment(Vector(25, 19.5, 0), Vector(15, 19.5, 0)),  # 4
    Part.ArcOfCircle(Part.Circle(Vector(15, 15.5, 0), Vector(0, 0, 1), 4), math.radians(90), math.radians(270)),  # 5
    Part.LineSegment(Vector(15, 11.5, 0), Vector(25, 11.5, 0)),  # 6
    Part.ArcOfCircle(Part.Circle(Vector(25, 15.5, 0), Vector(0, 0, 1), 4), math.radians(-90), math.radians(90)),  # 7
    Part.LineSegment(Vector(25, -11.5, 0), Vector(15, -11.5, 0)),  # 8
    Part.ArcOfCircle(Part.Circle(Vector(15, -15.5, 0), Vector(0, 0, 1), 4), math.radians(90), math.radians(270)),  # 9
    Part.LineSegment(Vector(15, -19.5, 0), Vector(25, -19.5, 0)),  # 10
    Part.ArcOfCircle(Part.Circle(Vector(25, -15.5, 0), Vector(0, 0, 1), 4), math.radians(-90), math.radians(90)),  # 11
    Part.LineSegment(Vector(-6, -11.5, 0), Vector(-16, -11.5, 0)),  # 12
    Part.ArcOfCircle(Part.Circle(Vector(-16, -15.5, 0), Vector(0, 0, 1), 4), math.radians(90), math.radians(270)),  # 13
    Part.LineSegment(Vector(-16, -19.5, 0), Vector(-6, -19.5, 0)),  # 14
    Part.ArcOfCircle(Part.Circle(Vector(-6, -15.5, 0), Vector(0, 0, 1), 4), math.radians(-90), math.radians(90)),  # 15
], False)
sketch11.addConstraint([
    Sketcher.Constraint("Tangent", 0, 2, 1, 1),
    Sketcher.Constraint("Tangent", 1, 2, 2, 1),
    Sketcher.Constraint("Tangent", 2, 2, 3, 1),
    Sketcher.Constraint("Tangent", 3, 2, 0, 1),
    Sketcher.Constraint("Tangent", 4, 2, 5, 1),
    Sketcher.Constraint("Tangent", 5, 2, 6, 1),
    Sketcher.Constraint("Tangent", 6, 2, 7, 1),
    Sketcher.Constraint("Tangent", 7, 2, 4, 1),
    Sketcher.Constraint("Tangent", 8, 2, 9, 1),
    Sketcher.Constraint("Tangent", 9, 2, 10, 1),
    Sketcher.Constraint("Tangent", 10, 2, 11, 1),
    Sketcher.Constraint("Tangent", 11, 2, 8, 1),
    Sketcher.Constraint("Tangent", 12, 2, 13, 1),
    Sketcher.Constraint("Tangent", 13, 2, 14, 1),
    Sketcher.Constraint("Tangent", 14, 2, 15, 1),
    Sketcher.Constraint("Tangent", 15, 2, 12, 1),
    Sketcher.Constraint("Horizontal", 0),
    Sketcher.Constraint("Horizontal", 2),
    Sketcher.Constraint("Horizontal", 4),
    Sketcher.Constraint("Horizontal", 6),
    Sketcher.Constraint("Horizontal", 8),
    Sketcher.Constraint("Horizontal", 10),
    Sketcher.Constraint("Horizontal", 12),
    Sketcher.Constraint("Horizontal", 14),
    Sketcher.Constraint("Equal", 3, 5),
    Sketcher.Constraint("Equal", 7, 9),
    Sketcher.Constraint("Equal", 11, 13),
    Sketcher.Constraint("Symmetric", 5, 3, 9, 3, -1),
    Sketcher.Constraint("Symmetric", 1, 3, 13, 3, -1),
    Sketcher.Constraint("Horizontal", 3, 3, 5, 3),
    Sketcher.Constraint("Vertical", 7, 3, 11, 3),
    Sketcher.Constraint("Vertical", 3, 3, 15, 3),
    Sketcher.Constraint("Equal", 2, 4),
    Sketcher.Constraint("Radius", 1, 4.0),
    Sketcher.Constraint("DistanceX", 0, 2, 0, 1, 10.0),
    Sketcher.Constraint("DistanceX", 1, 3, -1, 1, 16.0),
    Sketcher.Constraint("DistanceX", -1, 1, 5, 3, 15.0),
    Sketcher.Constraint("DistanceY", 9, 3, 5, 3, 31.0),
])
pocket3 = doc.addObject("PartDesign::Pocket", "Pocket002")
body.addObject(pocket3)
pocket3.Profile = sketch11
pocket3.Length = 3
doc.recompute()

chamfer = doc.addObject("PartDesign::Chamfer", "Chamfer")
body.addObject(chamfer)
chamfer.Base = (pocket3, edges_at(pocket3, [(33.5, 0, -9)]))
chamfer.Size = 3
doc.recompute()

fillet = doc.addObject("PartDesign::Fillet", "Fillet")
body.addObject(fillet)
fillet.Base = (chamfer, edges_at(chamfer, [
    (-27.5, -25, 3),
    (-27.5, 25, 3),
    (-27.5, 0, 6),
    (53.5, 25, -12),
    (53.5, -25, -12),
    (53.5, 0, -9),
]))
fillet.Radius = 2

doc.recompute()
